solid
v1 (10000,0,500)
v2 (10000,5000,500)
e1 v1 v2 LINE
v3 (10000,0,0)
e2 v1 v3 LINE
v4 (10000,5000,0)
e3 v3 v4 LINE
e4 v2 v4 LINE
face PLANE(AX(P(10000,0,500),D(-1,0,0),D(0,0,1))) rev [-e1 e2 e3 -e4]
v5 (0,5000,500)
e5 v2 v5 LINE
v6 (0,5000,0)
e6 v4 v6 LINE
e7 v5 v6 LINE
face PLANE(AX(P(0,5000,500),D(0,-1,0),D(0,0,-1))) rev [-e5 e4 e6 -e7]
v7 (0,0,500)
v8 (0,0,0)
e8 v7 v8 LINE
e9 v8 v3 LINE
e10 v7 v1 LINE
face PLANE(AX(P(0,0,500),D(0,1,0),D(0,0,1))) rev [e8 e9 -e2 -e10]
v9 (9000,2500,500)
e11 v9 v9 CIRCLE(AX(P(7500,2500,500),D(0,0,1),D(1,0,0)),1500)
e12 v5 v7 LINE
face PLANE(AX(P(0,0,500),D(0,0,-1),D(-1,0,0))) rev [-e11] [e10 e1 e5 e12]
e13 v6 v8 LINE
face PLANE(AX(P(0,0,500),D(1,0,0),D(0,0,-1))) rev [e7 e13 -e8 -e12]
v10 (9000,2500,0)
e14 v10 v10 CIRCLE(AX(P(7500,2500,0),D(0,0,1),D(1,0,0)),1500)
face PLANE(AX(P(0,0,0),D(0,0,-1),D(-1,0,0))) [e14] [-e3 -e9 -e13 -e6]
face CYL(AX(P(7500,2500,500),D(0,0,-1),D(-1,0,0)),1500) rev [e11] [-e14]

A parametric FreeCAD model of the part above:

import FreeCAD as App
import Part
import Sketcher


def add_polygon(sketch, points):
    """Adds a closed chain of lines whose ends are joined by coincident constraints."""
    first, n = sketch.GeometryCount, len(points)
    for a, b in zip(points, points[1:] + points[:1]):
        sketch.addGeometry(Part.LineSegment(App.Vector(*a, 0), App.Vector(*b, 0)), False)
    for i in range(n):
        sketch.addConstraint(Sketcher.Constraint("Coincident", first + i, 2, first + (i + 1) % n, 1))

doc = App.newDocument("Part")
body = doc.addObject("PartDesign::Body", "Body")

# Sketch on XY plane
sketch1 = body.newObject("Sketcher::SketchObject", "Sketch")
sketch1.AttachmentSupport = (doc.getObject("XY_Plane"), [""])
sketch1.MapMode = "FlatFace"
add_polygon(sketch1, [(0, 5000), (0, 0), (10000, 0), (10000, 5000)])  # lines 0-3
sketch1.addGeometry(Part.Circle(App.Vector(7500, 2500, 0), App.Vector(0, 0, 1), 1500), False)  # 4
sketch1.addConstraint([
    Sketcher.Constraint("Vertical", 0),
    Sketcher.Constraint("Horizontal", 1),
    Sketcher.Constraint("Vertical", 2),
    Sketcher.Constraint("Horizontal", 3),
    Sketcher.Constraint("Coincident", 0, 2, -1, 1),
    Sketcher.Constraint("Diameter", 4, 3000.0),
    Sketcher.Constraint("DistanceX", 1, 1, 1, 2, 10000.0),
    Sketcher.Constraint("DistanceY", 0, 2, 0, 1, 5000.0),
    Sketcher.Constraint("DistanceX", -1, 1, 4, 3, 7500.0),
    Sketcher.Constraint("DistanceY", -1, 1, 4, 3, 2500.0),
])
pad1 = body.newObject("PartDesign::Pad", "Pad")
pad1.Profile = sketch1
pad1.Length = 500

doc.recompute()
